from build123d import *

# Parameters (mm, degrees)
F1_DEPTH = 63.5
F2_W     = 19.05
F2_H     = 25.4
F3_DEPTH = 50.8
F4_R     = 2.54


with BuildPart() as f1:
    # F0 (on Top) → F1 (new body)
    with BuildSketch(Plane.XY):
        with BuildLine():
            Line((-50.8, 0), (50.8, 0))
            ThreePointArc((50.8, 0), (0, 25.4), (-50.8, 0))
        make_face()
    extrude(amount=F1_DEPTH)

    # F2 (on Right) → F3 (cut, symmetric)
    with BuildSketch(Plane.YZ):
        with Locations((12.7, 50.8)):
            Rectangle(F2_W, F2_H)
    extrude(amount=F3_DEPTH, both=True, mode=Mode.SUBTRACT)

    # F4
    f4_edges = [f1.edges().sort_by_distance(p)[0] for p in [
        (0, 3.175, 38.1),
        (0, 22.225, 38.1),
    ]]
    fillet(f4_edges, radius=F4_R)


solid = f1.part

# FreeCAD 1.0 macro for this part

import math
import FreeCAD as App
import Part
import Sketcher
from FreeCAD import Vector
Q = App.Units.Quantity


def edges_at(feature, points):
    """Names of the edges that pass closest to the given points."""
    edges = feature.Shape.Edges
    near = lambda p: min(range(len(edges)), key=lambda i: edges[i].distToShape(Part.Vertex(*p))[0])
    return sorted({f"Edge{near(p) + 1}" for p in points})

doc = App.newDocument("Part")
body = doc.addObject("PartDesign::Body", "Body")

# Sketch on XY plane
sketch1 = body.newObject("Sketcher::SketchObject", "Sketch")
sketch1.AttachmentSupport = (doc.getObject("XY_Plane"), [""])
sketch1.MapMode = "FlatFace"
sketch1.addGeometry([
    Part.LineSegment(Vector(-50.8, 0, 0), Vector(50.8, 0, 0)),
    Part.ArcOfCircle(Part.Circle(Vector(0, -38.1, 0), Vector(0, 0, 1), 63.5), math.radians(36.869898), math.radians(143.130102)),
], False)
sketch1.addConstraint([
    Sketcher.Constraint("Coincident", 0, 1, 1, 2),
    Sketcher.Constraint("Coincident", 1, 1, 0, 2),
    Sketcher.Constraint("Horizontal", 0),
    Sketcher.Constraint("Symmetric", 0, 1, 1, 1, -1, 1),
    Sketcher.Constraint("Radius", 1, Q("2.5 in")),
    Sketcher.Constraint("DistanceX", 0, 1, 0, 2, Q("4 in")),
])
pad1 = body.newObject("PartDesign::Pad", "Pad")
pad1.Profile = sketch1
pad1.Length = Q("2.5 in")

# Sketch on YZ plane
sketch2 = body.newObject("Sketcher::SketchObject", "Sketch001")
sketch2.AttachmentSupport = (doc.getObject("YZ_Plane"), [""])
sketch2.MapMode = "FlatFace"
sketch2.addGeometry([
    Part.LineSegment(Vector(3.175, 63.5, 0), Vector(3.175, 38.1, 0)),
    Part.LineSegment(Vector(3.175, 38.1, 0), Vector(22.225, 38.1, 0)),
    Part.LineSegment(Vector(22.225, 38.1, 0), Vector(22.225, 63.5, 0)),
    Part.LineSegment(Vector(22.225, 63.5, 0), Vector(3.175, 63.5, 0)),
], False)
sketch2.addConstraint([
    Sketcher.Constraint("Coincident", 0, 2, 1, 1),
    Sketcher.Constraint("Coincident", 1, 2, 2, 1),
    Sketcher.Constraint("Coincident", 2, 2, 3, 1),
    Sketcher.Constraint("Coincident", 3, 2, 0, 1),
    Sketcher.Constraint("Vertical", 0),
    Sketcher.Constraint("Horizontal", 1),
    Sketcher.Constraint("Vertical", 2),
    Sketcher.Constraint("Horizontal", 3),
    Sketcher.Constraint("DistanceY", 0, 2, 0, 1, Q("1 in")),
    Sketcher.Constraint("DistanceX", 1, 1, 1, 2, Q("0.75 in")),
    Sketcher.Constraint("DistanceY", -1, 1, 0, 2, Q("1.5 in")),
    Sketcher.Constraint("DistanceX", -1, 1, 0, 2, Q("0.125 in")),
])
pocket1 = body.newObject("PartDesign::Pocket", "Pocket")
pocket1.Profile = sketch2
pocket1.Length = Q("4 in")
pocket1.Midplane = True
doc.recompute()

fillet = body.newObject("PartDesign::Fillet", "Fillet")
fillet.Base = (pocket1, edges_at(pocket1, [(0, 3.175, 38.1), (0, 22.225, 38.1)]))
fillet.Radius = Q("0.1 in")

doc.recompute()
